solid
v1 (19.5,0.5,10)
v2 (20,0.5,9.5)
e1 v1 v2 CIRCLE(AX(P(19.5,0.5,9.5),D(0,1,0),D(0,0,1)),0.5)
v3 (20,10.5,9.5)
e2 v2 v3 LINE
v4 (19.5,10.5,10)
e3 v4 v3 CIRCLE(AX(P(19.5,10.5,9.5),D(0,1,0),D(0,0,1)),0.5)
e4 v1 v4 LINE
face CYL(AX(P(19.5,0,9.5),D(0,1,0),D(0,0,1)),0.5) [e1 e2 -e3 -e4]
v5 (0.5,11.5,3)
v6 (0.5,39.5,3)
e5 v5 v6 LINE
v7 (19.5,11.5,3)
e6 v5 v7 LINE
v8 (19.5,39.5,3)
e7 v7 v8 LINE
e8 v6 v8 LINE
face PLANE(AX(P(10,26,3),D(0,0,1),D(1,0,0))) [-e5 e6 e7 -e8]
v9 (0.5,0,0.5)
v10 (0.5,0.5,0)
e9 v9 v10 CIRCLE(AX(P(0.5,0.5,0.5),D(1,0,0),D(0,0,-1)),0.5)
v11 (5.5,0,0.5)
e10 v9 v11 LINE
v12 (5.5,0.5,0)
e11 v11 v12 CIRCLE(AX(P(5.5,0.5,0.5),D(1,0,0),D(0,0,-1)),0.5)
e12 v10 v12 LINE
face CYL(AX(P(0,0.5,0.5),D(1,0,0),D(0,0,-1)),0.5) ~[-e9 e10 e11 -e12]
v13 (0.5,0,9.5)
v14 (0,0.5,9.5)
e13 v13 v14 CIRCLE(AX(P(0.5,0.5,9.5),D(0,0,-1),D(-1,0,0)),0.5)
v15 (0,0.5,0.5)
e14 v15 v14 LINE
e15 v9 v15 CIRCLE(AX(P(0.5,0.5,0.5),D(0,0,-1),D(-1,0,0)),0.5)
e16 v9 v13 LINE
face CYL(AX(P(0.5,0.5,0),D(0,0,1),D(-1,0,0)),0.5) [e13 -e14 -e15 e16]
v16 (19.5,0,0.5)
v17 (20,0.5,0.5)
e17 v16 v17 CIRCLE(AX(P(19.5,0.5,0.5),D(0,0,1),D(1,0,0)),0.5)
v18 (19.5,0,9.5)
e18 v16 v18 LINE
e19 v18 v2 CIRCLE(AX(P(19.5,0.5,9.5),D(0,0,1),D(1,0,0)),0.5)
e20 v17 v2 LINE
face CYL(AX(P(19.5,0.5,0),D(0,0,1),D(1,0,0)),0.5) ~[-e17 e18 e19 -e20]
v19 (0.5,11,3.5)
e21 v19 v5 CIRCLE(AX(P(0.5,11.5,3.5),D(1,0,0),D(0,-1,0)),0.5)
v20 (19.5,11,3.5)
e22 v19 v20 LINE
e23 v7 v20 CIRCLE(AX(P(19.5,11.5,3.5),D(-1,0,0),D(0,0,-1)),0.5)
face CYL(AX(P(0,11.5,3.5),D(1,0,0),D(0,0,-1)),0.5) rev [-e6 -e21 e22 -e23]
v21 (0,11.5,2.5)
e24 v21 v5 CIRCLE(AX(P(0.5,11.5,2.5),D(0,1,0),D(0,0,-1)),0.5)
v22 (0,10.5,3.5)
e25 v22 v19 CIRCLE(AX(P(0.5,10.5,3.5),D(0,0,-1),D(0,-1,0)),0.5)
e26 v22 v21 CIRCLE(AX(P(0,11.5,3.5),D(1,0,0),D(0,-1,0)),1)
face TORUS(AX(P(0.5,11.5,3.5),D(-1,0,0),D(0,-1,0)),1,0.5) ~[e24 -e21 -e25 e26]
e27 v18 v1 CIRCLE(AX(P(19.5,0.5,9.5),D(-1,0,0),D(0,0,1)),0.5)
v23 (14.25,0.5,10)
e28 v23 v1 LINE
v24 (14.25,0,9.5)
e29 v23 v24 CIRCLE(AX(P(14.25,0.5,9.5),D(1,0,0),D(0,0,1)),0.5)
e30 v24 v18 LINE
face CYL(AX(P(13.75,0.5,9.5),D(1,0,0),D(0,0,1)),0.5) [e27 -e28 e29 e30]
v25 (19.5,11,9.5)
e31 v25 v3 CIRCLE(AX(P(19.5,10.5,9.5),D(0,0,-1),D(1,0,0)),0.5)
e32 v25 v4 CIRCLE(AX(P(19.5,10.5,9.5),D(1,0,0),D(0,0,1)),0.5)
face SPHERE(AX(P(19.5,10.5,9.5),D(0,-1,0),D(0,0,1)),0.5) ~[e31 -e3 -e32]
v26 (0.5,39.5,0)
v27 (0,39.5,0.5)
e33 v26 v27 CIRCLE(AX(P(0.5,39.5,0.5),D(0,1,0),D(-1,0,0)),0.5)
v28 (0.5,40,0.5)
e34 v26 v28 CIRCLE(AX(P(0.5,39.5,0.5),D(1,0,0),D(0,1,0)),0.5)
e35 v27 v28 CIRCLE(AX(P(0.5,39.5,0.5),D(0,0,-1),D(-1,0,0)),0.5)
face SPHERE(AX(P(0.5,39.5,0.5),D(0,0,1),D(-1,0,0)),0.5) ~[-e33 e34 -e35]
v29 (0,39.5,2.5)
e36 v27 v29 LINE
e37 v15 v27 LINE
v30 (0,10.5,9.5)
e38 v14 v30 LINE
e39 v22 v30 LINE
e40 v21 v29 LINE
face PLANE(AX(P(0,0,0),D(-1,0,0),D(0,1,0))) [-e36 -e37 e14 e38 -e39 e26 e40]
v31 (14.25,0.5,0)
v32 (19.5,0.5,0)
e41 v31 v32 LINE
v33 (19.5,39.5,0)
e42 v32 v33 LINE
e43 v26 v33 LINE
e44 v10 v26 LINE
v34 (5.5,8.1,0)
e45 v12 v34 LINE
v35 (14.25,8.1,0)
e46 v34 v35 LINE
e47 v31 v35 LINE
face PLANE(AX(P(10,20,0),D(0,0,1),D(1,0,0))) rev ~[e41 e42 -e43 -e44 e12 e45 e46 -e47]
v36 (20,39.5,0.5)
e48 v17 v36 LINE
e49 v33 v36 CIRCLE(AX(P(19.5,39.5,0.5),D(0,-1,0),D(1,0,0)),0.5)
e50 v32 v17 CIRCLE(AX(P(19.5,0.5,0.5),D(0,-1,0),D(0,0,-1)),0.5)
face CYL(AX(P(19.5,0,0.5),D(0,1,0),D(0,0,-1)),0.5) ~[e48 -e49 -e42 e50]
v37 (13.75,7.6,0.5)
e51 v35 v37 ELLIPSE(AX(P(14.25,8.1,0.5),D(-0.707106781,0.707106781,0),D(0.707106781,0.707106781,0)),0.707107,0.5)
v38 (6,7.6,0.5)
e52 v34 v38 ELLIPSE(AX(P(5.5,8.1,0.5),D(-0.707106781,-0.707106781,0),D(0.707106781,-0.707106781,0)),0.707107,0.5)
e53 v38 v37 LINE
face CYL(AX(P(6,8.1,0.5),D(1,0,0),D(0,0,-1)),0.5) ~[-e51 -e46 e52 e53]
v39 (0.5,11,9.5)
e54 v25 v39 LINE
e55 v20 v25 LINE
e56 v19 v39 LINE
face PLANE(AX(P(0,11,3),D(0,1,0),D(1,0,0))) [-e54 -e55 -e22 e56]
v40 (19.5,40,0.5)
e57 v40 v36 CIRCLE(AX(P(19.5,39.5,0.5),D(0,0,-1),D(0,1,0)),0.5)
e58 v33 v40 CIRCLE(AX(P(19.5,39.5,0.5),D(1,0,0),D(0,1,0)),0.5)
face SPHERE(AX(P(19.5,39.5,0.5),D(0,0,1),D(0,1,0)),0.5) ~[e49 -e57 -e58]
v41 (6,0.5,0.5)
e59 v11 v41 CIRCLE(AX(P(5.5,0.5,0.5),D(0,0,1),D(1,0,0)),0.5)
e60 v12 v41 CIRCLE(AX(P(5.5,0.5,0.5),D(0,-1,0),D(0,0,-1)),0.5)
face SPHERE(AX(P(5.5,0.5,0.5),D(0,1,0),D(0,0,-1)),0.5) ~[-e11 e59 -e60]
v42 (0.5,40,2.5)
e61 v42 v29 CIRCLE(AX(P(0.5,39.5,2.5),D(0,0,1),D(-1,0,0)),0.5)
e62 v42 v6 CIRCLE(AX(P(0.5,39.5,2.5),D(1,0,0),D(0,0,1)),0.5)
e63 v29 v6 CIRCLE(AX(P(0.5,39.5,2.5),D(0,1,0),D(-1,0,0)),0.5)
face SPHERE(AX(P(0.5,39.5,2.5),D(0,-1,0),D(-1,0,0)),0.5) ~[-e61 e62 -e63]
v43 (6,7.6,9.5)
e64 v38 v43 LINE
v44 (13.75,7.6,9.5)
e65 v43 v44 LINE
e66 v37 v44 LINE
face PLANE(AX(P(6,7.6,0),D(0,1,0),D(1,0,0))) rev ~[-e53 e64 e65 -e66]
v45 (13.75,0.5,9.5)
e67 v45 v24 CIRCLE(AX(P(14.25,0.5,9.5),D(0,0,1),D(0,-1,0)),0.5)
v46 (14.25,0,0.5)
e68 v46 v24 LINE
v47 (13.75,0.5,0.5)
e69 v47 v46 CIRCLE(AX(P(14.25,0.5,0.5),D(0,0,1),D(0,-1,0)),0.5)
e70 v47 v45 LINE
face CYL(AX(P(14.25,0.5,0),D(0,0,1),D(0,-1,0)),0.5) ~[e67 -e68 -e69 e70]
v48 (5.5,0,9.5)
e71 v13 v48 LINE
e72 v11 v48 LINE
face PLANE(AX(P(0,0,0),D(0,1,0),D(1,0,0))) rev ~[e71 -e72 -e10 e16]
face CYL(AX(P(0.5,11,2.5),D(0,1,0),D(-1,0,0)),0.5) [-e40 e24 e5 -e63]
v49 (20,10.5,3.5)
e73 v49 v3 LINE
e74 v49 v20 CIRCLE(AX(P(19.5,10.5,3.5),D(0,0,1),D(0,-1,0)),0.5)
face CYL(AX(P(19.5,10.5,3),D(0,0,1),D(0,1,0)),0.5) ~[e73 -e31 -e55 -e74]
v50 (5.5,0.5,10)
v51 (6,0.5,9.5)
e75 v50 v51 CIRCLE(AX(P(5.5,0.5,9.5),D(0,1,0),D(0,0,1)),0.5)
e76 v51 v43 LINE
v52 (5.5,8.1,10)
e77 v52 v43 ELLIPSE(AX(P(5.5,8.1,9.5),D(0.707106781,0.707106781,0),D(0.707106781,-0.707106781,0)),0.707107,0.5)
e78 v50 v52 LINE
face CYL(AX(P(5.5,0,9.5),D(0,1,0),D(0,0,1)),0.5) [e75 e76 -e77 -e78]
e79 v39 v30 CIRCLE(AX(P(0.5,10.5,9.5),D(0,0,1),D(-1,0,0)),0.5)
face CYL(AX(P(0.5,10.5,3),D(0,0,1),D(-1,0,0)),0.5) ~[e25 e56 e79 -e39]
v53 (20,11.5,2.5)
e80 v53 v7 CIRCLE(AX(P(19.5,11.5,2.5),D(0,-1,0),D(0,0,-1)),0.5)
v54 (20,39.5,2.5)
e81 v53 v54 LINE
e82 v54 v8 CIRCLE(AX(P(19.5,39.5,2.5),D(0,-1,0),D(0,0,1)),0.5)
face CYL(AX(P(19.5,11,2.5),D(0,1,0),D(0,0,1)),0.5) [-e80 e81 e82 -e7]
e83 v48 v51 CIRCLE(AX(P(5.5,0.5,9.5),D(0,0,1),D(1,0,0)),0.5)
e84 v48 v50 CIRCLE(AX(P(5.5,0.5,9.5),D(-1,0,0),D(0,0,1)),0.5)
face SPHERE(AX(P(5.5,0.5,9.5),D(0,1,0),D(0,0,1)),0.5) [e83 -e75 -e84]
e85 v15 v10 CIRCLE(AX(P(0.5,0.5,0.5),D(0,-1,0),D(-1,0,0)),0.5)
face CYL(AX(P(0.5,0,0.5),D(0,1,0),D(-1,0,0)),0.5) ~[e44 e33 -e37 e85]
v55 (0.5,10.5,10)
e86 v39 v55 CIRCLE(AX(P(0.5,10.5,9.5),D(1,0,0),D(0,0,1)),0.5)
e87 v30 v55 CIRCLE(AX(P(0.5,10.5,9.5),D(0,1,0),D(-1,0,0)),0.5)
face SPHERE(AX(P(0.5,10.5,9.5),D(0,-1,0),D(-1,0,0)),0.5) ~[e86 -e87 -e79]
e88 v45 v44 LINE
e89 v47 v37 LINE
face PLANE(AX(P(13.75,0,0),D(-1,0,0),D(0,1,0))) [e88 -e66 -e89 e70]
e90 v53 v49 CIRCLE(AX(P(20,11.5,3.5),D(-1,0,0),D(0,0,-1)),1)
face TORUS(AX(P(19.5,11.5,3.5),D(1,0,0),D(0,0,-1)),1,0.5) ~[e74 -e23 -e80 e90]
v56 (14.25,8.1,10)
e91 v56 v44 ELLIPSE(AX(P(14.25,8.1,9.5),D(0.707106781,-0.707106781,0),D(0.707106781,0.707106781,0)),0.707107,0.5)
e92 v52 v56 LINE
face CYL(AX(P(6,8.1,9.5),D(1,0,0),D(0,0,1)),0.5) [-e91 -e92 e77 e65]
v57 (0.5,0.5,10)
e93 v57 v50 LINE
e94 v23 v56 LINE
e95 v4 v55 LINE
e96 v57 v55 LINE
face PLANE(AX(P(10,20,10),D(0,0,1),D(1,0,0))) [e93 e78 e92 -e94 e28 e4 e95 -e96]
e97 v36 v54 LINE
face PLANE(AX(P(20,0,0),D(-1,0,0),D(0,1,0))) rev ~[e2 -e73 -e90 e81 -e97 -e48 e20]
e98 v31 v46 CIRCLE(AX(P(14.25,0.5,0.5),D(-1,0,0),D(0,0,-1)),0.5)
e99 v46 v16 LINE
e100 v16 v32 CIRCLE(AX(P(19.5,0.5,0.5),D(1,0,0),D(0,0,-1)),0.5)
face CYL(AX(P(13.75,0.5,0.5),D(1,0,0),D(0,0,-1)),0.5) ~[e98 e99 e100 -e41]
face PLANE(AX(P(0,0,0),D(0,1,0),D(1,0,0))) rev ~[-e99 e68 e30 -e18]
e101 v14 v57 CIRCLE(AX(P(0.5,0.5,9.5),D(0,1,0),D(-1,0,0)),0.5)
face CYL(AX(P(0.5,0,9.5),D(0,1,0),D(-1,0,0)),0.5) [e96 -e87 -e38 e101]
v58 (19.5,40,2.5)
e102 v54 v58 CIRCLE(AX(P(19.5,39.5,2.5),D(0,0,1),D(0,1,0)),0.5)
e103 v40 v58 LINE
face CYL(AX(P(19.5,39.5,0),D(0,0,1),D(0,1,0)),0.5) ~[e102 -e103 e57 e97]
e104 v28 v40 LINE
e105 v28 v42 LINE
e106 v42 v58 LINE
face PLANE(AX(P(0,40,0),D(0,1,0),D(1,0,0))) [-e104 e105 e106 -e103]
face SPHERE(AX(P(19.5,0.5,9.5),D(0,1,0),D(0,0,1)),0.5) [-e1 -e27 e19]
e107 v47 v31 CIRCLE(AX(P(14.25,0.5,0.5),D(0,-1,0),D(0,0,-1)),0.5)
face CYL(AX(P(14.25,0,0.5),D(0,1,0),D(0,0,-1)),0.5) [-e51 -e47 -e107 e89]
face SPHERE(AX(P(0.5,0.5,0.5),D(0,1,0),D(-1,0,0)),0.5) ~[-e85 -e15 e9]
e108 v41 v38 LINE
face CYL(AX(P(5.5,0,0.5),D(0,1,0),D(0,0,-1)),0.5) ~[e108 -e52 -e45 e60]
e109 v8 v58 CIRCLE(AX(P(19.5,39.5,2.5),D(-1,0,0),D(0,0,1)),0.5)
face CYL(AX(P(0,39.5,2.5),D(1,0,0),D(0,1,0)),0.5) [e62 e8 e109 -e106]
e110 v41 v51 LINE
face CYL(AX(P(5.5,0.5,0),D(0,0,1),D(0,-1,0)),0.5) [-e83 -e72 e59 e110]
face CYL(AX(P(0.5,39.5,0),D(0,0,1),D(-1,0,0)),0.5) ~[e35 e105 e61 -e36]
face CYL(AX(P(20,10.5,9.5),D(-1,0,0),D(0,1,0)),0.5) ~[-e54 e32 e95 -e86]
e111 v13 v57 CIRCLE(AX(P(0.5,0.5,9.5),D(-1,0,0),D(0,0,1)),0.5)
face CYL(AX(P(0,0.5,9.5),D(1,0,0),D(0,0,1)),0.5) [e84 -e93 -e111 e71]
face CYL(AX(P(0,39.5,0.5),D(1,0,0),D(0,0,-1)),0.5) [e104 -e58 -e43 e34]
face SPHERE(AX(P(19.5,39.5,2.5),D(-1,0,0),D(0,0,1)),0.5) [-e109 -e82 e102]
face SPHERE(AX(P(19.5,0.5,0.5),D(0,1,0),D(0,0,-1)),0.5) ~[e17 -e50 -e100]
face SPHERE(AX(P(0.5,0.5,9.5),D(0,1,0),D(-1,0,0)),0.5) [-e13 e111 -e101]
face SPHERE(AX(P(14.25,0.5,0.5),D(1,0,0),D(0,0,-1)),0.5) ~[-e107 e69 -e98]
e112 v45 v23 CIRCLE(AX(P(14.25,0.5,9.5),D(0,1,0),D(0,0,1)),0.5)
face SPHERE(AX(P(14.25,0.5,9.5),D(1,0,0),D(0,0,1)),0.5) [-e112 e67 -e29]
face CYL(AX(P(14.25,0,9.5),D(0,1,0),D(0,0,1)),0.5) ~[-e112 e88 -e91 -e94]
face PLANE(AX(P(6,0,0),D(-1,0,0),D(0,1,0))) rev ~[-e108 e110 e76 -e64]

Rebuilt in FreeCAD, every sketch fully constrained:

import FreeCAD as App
import Part
import Sketcher


def edges_at(feature, points):
    """Names of the edges that pass closest to the given points."""
    edges = feature.Shape.Edges
    near = lambda p: min(range(len(edges)), key=lambda i: edges[i].distToShape(Part.Vertex(*p))[0])
    return sorted({f"Edge{near(p) + 1}" for p in points})

doc = App.newDocument("Part")
body = doc.addObject("PartDesign::Body", "Body")

sketch1 = doc.addObject("Sketcher::SketchObject", "Sketch")
body.addObject(sketch1)
sketch1.AttachmentSupport = (doc.XY_Plane, [""])
sketch1.MapMode = "FlatFace"
sketch1.AttachmentOffset = App.Placement(App.Vector(0, 0, 3), App.Rotation())
sketch1.addGeometry([
    Part.LineSegment(App.Vector(0, 41, 0), App.Vector(0, 11, 0)),
    Part.LineSegment(App.Vector(0, 11, 0), App.Vector(20, 11, 0)),
    Part.LineSegment(App.Vector(20, 11, 0), App.Vector(20, 41, 0)),
    Part.LineSegment(App.Vector(20, 41, 0), App.Vector(0, 41, 0)),
], False)
sketch1.addConstraint([
    Sketcher.Constraint("Coincident", 0, 2, 1, 1),
    Sketcher.Constraint("Coincident", 1, 2, 2, 1),
    Sketcher.Constraint("Coincident", 2, 2, 3, 1),
    Sketcher.Constraint("Coincident", 3, 2, 0, 1),
    Sketcher.Constraint("Vertical", 0),
    Sketcher.Constraint("Horizontal", 1),
    Sketcher.Constraint("Vertical", 2),
    Sketcher.Constraint("Horizontal", 3),
    Sketcher.Constraint("PointOnObject", 0, 2, -2),
    Sketcher.Constraint("DistanceX", 1, 1, 1, 2, 20.0),
    Sketcher.Constraint("DistanceY", 0, 2, 0, 1, 30.0),
    Sketcher.Constraint("DistanceY", -1, 1, 0, 2, 11.0),
])
pad1 = doc.addObject("PartDesign::Pad", "Pad")
body.addObject(pad1)
pad1.Profile = sketch1
pad1.Length = 10
body2 = doc.addObject("PartDesign::Body", "Body001")

sketch2 = doc.addObject("Sketcher::SketchObject", "Sketch001")
body2.addObject(sketch2)
sketch2.AttachmentSupport = (doc.getObject("XY_Plane001"), [""])
sketch2.MapMode = "FlatFace"
sketch2.addGeometry([
    Part.LineSegment(App.Vector(6, 8, 0), App.Vector(6, 0, 0)),
    Part.LineSegment(App.Vector(6, 0, 0), App.Vector(14, 0, 0)),
    Part.LineSegment(App.Vector(14, 0, 0), App.Vector(14, 8, 0)),
    Part.LineSegment(App.Vector(14, 8, 0), App.Vector(6, 8, 0)),
], False)
sketch2.addConstraint([
    Sketcher.Constraint("Coincident", 0, 2, 1, 1),
    Sketcher.Constraint("Coincident", 1, 2, 2, 1),
    Sketcher.Constraint("Coincident", 2, 2, 3, 1),
    Sketcher.Constraint("Coincident", 3, 2, 0, 1),
    Sketcher.Constraint("Vertical", 0),
    Sketcher.Constraint("Horizontal", 1),
    Sketcher.Constraint("Vertical", 2),
    Sketcher.Constraint("Horizontal", 3),
    Sketcher.Constraint("PointOnObject", 0, 2, -1),
    Sketcher.Constraint("DistanceY", 0, 2, 0, 1, 7.6),
    Sketcher.Constraint("DistanceX", -1, 1, 0, 2, 6.0),
    Sketcher.Constraint("DistanceX", 1, 1, 1, 2, 7.75),
])
pad2 = doc.addObject("PartDesign::Pad", "Pad001")
body2.addObject(pad2)
pad2.Profile = sketch2
pad2.Length = 10
body3 = doc.addObject("PartDesign::Body", "Body002")

sketch3 = doc.addObject("Sketcher::SketchObject", "Sketch002")
body3.addObject(sketch3)
sketch3.AttachmentSupport = (doc.getObject("XY_Plane002"), [""])
sketch3.MapMode = "FlatFace"
sketch3.addGeometry([
    Part.LineSegment(App.Vector(0, 40, 0), App.Vector(0, 0, 0)),
    Part.LineSegment(App.Vector(0, 0, 0), App.Vector(20, 0, 0)),
    Part.LineSegment(App.Vector(20, 0, 0), App.Vector(20, 40, 0)),
    Part.LineSegment(App.Vector(20, 40, 0), App.Vector(0, 40, 0)),
], False)
sketch3.addConstraint([
    Sketcher.Constraint("Coincident", 0, 2, 1, 1),
    Sketcher.Constraint("Coincident", 1, 2, 2, 1),
    Sketcher.Constraint("Coincident", 2, 2, 3, 1),
    Sketcher.Constraint("Coincident", 3, 2, 0, 1),
    Sketcher.Constraint("Vertical", 0),
    Sketcher.Constraint("Horizontal", 1),
    Sketcher.Constraint("Vertical", 2),
    Sketcher.Constraint("Horizontal", 3),
    Sketcher.Constraint("Coincident", 0, 2, -1, 1),
    Sketcher.Constraint("DistanceX", 1, 1, 1, 2, 20.0),
    Sketcher.Constraint("DistanceY", 0, 2, 0, 1, 40.0),
])
pad3 = doc.addObject("PartDesign::Pad", "Pad002")
body3.addObject(pad3)
pad3.Profile = sketch3
pad3.Length = 10
doc.recompute()

boolean = doc.addObject("PartDesign::Boolean", "Boolean")
body3.addObject(boolean)
boolean.Type = "Cut"
boolean.addObjects([body2])
doc.recompute()

boolean2 = doc.addObject("PartDesign::Boolean", "Boolean001")
body3.addObject(boolean2)
boolean2.Type = "Cut"
boolean2.addObjects([body])
doc.recompute()

fillet = doc.addObject("PartDesign::Fillet", "Fillet")
body3.addObject(fillet)
fillet.Base = (boolean2, edges_at(boolean2, [
    (0, 5.5, 10),
    (0, 11, 6.5),
    (0, 25.5, 3),
    (0, 40, 1.5),
    (0, 20, 0),
    (0, 0, 5),
    (20, 5.5, 10),
    (16.875, 0, 10),
    (13.75, 3.8, 10),
    (9.875, 7.6, 10),
    (6, 3.8, 10),
    (3, 0, 10),
    (10, 11, 10),
    (20, 11, 6.5),
    (10, 11, 3),
    (10, 40, 3),
    (20, 25.5, 3),
    (20, 40, 1.5),
    (10, 40, 0),
    (20, 20, 0),
    (16.875, 0, 0),
    (13.75, 3.8, 0),
    (9.875, 7.6, 0),
    (6, 3.8, 0),
    (3, 0, 0),
    (6, 0, 5),
    (20, 0, 5),
    (13.75, 0, 5),
]))
fillet.Radius = 0.5

doc.recompute()
